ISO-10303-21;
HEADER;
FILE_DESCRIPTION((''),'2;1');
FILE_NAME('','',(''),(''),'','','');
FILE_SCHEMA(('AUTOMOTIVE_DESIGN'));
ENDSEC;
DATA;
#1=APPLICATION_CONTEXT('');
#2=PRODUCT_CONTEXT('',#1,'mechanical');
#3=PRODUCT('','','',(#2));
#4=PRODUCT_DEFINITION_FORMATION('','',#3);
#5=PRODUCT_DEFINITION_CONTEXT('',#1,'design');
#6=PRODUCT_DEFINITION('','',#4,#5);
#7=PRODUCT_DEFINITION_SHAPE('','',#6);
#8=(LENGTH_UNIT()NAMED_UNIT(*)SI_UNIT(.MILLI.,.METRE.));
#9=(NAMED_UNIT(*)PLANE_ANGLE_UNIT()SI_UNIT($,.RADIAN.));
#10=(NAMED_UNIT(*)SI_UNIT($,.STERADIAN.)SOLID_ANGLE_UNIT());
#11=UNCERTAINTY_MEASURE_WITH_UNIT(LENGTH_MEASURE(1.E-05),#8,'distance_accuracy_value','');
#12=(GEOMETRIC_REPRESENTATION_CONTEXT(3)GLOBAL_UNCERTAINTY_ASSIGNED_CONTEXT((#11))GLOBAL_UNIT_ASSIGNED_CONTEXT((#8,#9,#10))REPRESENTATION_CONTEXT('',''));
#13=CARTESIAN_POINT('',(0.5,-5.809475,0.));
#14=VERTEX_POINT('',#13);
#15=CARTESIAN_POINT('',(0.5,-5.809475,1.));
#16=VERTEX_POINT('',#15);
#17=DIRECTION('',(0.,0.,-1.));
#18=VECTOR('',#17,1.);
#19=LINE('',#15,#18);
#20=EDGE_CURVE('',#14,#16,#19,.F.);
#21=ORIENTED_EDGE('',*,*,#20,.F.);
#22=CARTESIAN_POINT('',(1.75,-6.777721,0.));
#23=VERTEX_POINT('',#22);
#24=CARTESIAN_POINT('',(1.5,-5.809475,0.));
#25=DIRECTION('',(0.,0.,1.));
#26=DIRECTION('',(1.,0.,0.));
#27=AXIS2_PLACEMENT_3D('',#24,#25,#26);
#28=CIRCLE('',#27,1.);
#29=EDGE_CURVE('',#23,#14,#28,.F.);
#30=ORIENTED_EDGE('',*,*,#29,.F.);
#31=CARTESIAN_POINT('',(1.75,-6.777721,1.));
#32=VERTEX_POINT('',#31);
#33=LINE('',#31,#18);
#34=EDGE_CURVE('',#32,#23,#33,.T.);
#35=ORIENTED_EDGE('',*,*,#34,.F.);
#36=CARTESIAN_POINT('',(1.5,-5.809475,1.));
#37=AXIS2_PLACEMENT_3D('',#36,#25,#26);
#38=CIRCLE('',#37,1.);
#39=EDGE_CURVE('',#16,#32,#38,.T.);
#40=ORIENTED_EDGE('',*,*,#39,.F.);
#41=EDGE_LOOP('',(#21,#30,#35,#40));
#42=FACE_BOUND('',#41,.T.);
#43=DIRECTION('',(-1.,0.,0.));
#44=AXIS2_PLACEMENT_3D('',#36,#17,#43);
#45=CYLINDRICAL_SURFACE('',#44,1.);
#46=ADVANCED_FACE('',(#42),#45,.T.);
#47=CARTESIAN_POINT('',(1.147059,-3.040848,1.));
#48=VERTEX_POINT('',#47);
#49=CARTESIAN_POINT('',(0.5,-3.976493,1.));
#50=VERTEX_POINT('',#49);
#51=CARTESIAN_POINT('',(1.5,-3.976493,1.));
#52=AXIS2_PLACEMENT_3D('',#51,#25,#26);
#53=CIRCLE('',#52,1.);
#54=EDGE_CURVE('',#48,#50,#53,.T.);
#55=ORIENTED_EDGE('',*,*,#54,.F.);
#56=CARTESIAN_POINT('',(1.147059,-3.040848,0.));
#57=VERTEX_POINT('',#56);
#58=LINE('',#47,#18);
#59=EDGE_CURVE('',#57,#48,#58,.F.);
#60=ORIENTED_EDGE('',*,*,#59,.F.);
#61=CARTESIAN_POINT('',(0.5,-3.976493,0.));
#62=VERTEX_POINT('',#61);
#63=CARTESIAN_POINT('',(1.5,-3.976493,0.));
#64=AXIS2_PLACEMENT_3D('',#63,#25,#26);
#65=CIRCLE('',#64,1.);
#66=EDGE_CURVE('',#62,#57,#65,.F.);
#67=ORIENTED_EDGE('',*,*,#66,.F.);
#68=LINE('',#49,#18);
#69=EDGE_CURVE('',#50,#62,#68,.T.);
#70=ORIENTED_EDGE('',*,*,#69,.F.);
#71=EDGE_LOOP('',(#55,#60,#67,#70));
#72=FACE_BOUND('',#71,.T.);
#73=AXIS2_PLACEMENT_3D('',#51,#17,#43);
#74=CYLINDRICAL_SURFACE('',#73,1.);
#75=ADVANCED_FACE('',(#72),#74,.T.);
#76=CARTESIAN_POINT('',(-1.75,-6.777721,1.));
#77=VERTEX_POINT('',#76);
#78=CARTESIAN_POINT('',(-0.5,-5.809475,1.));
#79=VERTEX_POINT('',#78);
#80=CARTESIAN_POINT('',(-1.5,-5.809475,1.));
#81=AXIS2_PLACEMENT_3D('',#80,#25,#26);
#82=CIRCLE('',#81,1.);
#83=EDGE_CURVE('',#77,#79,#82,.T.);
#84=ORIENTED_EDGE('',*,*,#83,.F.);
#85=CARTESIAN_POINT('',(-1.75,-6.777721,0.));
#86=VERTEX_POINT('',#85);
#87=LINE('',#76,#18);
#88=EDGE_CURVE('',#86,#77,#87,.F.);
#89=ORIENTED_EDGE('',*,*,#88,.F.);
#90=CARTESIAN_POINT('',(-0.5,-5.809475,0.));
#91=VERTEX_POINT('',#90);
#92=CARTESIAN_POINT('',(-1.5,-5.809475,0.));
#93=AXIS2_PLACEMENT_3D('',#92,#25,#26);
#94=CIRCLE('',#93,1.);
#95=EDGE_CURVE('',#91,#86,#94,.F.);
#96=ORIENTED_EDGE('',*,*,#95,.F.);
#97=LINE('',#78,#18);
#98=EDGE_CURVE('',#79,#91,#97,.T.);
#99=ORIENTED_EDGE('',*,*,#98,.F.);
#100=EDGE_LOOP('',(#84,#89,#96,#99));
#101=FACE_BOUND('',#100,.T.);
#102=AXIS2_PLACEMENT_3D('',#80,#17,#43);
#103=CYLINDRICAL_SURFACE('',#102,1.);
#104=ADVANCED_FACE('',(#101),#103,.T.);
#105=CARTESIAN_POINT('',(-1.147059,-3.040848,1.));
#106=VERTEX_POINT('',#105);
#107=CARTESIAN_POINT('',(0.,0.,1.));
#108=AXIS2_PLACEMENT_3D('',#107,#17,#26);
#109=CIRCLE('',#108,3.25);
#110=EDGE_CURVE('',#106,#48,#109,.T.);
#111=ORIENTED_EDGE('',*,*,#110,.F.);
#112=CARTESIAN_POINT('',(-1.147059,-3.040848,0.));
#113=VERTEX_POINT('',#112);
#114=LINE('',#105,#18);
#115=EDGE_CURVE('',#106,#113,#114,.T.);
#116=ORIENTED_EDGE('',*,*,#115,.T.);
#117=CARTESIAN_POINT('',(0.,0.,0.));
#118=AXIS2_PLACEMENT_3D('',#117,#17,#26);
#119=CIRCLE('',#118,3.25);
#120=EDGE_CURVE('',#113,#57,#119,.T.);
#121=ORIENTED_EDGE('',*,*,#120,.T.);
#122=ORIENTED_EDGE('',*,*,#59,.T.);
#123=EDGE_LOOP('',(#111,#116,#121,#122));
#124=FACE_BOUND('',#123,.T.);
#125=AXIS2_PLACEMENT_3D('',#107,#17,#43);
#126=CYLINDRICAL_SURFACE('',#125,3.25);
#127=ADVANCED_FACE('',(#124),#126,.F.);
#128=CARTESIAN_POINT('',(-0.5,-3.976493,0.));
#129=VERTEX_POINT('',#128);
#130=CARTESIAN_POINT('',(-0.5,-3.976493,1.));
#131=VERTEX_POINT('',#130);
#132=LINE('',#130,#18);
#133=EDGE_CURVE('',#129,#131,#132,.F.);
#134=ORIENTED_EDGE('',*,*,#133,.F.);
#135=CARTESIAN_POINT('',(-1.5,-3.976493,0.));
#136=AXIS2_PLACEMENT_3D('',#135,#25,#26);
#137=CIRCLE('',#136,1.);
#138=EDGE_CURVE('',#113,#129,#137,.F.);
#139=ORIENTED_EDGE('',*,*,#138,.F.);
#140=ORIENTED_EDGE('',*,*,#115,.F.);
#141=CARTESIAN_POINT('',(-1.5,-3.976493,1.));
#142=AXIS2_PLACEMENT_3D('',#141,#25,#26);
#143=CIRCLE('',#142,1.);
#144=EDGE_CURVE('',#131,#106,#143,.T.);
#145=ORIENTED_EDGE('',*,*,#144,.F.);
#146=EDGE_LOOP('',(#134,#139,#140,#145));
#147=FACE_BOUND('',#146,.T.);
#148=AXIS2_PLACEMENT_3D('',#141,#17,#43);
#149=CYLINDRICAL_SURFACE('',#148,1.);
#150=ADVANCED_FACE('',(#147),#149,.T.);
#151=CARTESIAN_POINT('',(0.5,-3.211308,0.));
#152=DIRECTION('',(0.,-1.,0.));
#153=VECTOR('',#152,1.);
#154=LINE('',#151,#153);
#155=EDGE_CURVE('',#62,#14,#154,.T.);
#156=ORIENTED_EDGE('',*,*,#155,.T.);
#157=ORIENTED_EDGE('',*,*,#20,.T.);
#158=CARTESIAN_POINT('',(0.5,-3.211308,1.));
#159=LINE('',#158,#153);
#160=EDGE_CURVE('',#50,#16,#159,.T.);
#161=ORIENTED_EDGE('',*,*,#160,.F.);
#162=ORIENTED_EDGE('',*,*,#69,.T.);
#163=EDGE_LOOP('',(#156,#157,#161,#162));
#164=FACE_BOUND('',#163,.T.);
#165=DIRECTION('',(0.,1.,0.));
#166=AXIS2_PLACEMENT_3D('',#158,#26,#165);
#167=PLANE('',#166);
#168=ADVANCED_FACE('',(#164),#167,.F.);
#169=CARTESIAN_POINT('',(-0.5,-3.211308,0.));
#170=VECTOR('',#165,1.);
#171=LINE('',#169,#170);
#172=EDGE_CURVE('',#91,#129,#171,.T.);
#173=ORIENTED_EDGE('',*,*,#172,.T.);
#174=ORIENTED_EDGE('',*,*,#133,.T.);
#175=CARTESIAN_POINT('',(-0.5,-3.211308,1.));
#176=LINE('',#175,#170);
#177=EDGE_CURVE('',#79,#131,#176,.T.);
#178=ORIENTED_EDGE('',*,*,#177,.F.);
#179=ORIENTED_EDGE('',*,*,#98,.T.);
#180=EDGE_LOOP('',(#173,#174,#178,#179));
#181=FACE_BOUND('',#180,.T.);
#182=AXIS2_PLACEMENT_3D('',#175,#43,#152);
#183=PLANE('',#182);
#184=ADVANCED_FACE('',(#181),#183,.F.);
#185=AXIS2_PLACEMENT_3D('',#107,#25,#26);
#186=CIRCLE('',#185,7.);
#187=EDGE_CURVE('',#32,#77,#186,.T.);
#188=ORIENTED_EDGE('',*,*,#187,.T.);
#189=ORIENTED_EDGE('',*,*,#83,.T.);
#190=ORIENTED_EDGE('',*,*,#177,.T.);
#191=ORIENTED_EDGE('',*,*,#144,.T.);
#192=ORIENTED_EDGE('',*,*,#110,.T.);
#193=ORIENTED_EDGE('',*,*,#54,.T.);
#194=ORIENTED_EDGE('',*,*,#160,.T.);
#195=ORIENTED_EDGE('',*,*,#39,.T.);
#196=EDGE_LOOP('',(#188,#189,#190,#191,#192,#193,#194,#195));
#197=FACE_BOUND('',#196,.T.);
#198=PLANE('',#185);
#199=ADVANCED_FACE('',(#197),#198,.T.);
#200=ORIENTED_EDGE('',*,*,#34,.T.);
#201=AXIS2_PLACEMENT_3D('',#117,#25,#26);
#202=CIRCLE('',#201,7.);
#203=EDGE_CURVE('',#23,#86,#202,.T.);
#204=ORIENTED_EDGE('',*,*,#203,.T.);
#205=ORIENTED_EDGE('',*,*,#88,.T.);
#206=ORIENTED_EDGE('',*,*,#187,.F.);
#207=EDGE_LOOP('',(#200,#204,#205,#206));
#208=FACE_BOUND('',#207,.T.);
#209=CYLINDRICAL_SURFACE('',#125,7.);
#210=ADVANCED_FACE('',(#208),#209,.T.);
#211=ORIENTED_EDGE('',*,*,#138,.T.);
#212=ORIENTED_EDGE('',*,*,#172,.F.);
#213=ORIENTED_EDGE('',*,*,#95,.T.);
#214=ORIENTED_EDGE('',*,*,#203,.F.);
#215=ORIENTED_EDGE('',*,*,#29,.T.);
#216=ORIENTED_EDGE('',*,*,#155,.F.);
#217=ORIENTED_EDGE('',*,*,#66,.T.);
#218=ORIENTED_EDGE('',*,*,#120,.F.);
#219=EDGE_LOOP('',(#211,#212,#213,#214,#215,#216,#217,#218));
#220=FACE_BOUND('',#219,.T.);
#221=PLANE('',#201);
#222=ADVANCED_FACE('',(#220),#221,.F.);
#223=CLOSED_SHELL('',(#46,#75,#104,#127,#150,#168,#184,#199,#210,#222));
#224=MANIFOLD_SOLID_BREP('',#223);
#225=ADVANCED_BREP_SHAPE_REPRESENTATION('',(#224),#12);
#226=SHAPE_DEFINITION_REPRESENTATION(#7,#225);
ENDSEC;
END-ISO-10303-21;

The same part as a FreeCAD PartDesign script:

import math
import FreeCAD as App
import Part
import Sketcher
Q = App.Units.Quantity


def edges_at(feature, points):
    """Names of the edges that pass closest to the given points."""
    edges = feature.Shape.Edges
    near = lambda p: min(range(len(edges)), key=lambda i: edges[i].distToShape(Part.Vertex(*p))[0])
    return sorted({f"Edge{near(p) + 1}" for p in points})

doc = App.newDocument("Part")
body = doc.addObject("PartDesign::Body", "Body")

# Sketch on XY plane
sketch1 = body.newObject("Sketcher::SketchObject", "Sketch")
sketch1.AttachmentSupport = (doc.getObject("XY_Plane"), [""])
sketch1.MapMode = "FlatFace"
sketch1.addGeometry([
    Part.LineSegment(App.Vector(-0.5, -7, 0), App.Vector(-0.5, -3.2, 0)),
    Part.ArcOfCircle(Part.Circle(App.Vector(0, 0, 0), App.Vector(0, 0, 1), 3.2), math.radians(-81), math.radians(261)),
    Part.LineSegment(App.Vector(0.5, -3.2, 0), App.Vector(0.5, -7, 0)),
    Part.ArcOfCircle(Part.Circle(App.Vector(0, 0, 0), App.Vector(0, 0, 1), 7), math.radians(-86), math.radians(266)),
], False)
sketch1.addConstraint([
    Sketcher.Constraint("Coincident", 0, 2, 1, 2),
    Sketcher.Constraint("Coincident", 1, 1, 2, 1),
    Sketcher.Constraint("Coincident", 2, 2, 3, 1),
    Sketcher.Constraint("Coincident", 3, 2, 0, 1),
    Sketcher.Constraint("Vertical", 0),
    Sketcher.Constraint("Vertical", 2),
    Sketcher.Constraint("Coincident", 1, 3, -1, 1),
    Sketcher.Constraint("Coincident", 3, 3, -1, 1),
    Sketcher.Constraint("Horizontal", 0, 2, 1, 1),
    Sketcher.Constraint("Radius", 3, Q("7 mm")),
    Sketcher.Constraint("Radius", 1, Q("3.25 mm")),
    Sketcher.Constraint("DistanceX", 0, 2, 1, 1, Q("1 mm")),
])
pad1 = body.newObject("PartDesign::Pad", "Pad")
pad1.Profile = sketch1
pad1.Length = 1
doc.recompute()

fillet = body.newObject("PartDesign::Fillet", "Fillet")
fillet.Base = (pad1, edges_at(pad1, [
    (-0.5, -3.211, 0.5),
    (-0.5, -6.982, 0.5),
    (0.5, -6.982, 0.5),
    (0.5, -3.211, 0.5),
]))
fillet.Radius = 1

doc.recompute()
